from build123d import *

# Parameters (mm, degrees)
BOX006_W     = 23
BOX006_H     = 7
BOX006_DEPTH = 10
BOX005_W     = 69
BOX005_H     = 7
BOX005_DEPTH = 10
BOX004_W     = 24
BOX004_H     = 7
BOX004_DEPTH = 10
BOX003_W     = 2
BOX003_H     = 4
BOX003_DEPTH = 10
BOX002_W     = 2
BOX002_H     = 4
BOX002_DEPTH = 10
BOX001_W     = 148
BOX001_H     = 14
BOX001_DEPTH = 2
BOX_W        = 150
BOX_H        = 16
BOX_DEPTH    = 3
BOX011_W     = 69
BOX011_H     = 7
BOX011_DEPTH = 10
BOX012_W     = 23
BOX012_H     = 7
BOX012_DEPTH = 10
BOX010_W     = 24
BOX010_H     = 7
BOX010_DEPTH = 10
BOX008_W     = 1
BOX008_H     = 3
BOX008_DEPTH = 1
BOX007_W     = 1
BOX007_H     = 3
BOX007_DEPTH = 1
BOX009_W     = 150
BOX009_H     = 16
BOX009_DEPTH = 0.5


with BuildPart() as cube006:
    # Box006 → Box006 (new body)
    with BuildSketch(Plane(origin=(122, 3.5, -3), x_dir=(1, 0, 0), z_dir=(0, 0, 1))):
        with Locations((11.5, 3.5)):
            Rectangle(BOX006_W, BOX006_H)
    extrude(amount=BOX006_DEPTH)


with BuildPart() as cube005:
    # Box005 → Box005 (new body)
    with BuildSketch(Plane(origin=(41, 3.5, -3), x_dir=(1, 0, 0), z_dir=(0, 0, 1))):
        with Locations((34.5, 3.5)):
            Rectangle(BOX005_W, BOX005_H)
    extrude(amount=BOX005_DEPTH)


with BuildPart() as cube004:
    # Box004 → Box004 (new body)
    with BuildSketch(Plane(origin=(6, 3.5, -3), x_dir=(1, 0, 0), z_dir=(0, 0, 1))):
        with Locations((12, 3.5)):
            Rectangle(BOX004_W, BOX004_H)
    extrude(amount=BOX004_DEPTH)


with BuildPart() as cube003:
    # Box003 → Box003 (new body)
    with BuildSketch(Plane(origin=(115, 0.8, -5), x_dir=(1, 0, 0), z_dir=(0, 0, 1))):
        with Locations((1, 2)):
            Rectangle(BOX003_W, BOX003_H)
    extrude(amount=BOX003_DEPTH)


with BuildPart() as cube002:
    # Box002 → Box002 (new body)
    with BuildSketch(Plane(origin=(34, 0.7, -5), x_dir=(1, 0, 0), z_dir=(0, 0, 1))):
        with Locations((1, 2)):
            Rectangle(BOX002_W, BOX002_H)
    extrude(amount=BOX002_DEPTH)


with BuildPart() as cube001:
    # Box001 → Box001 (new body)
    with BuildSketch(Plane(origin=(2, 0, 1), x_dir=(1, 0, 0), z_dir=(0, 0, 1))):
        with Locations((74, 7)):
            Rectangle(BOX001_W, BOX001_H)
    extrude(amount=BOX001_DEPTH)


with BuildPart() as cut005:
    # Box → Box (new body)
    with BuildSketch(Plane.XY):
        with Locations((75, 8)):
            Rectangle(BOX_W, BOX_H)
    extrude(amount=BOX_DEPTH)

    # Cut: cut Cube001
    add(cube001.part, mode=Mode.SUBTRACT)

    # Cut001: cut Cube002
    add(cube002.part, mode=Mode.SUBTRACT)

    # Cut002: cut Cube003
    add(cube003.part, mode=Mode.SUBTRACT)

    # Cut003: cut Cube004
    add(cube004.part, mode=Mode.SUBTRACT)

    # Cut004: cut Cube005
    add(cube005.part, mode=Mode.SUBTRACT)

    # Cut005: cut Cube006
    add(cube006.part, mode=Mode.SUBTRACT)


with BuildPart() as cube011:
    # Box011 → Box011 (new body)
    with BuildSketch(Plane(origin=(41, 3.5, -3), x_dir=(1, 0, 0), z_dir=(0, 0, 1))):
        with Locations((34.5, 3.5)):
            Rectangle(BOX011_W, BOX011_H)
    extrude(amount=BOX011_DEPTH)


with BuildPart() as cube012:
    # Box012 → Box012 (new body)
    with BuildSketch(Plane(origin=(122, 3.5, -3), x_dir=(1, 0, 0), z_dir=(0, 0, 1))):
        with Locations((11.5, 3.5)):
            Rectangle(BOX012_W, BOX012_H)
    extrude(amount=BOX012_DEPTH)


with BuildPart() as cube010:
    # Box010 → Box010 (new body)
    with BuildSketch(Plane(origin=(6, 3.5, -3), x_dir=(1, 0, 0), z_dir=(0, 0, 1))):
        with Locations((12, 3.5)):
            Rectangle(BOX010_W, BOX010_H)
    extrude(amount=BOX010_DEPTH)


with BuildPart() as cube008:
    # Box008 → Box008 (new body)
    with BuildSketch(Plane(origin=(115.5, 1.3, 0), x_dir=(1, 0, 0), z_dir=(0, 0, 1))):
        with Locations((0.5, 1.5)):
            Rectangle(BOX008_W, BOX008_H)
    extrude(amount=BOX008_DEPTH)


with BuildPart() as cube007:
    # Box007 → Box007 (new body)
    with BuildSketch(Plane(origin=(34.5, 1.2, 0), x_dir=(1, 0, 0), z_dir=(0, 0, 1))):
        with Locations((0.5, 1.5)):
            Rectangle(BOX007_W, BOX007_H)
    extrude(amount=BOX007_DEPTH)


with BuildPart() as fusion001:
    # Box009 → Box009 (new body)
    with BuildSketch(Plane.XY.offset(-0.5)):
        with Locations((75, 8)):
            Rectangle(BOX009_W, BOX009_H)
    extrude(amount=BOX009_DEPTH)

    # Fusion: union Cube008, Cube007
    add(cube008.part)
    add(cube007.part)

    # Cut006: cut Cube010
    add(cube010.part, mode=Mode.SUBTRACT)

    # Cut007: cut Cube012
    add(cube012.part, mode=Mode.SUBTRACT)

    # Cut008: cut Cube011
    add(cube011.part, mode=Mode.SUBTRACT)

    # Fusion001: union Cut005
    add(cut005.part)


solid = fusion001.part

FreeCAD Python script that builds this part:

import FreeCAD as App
import Part
import Sketcher


def add_polygon(sketch, points):
    """Adds a closed chain of lines whose ends are joined by coincident constraints."""
    first, n = sketch.GeometryCount, len(points)
    for a, b in zip(points, points[1:] + points[:1]):
        sketch.addGeometry(Part.LineSegment(App.Vector(*a, 0), App.Vector(*b, 0)), False)
    for i in range(n):
        sketch.addConstraint(Sketcher.Constraint("Coincident", first + i, 2, first + (i + 1) % n, 1))

doc = App.newDocument("Part")
body = doc.addObject("PartDesign::Body", "Body")

# Sketch on XY plane
sketch1 = body.newObject("Sketcher::SketchObject", "Sketch")
sketch1.AttachmentSupport = (doc.getObject("XY_Plane"), [""])
sketch1.MapMode = "FlatFace"
sketch1.AttachmentOffset = App.Placement(App.Vector(0, 0, -3), App.Rotation())
add_polygon(sketch1, [(122, 10), (122, 4), (145, 4), (145, 10)])  # lines 0-3
sketch1.addConstraint([
    Sketcher.Constraint("Vertical", 0),
    Sketcher.Constraint("Horizontal", 1),
    Sketcher.Constraint("Vertical", 2),
    Sketcher.Constraint("Horizontal", 3),
    Sketcher.Constraint("DistanceX", 1, 1, 1, 2, 23.0),
    Sketcher.Constraint("DistanceY", 0, 2, 0, 1, 7.0),
    Sketcher.Constraint("DistanceX", -1, 1, 0, 2, 122.0),
    Sketcher.Constraint("DistanceY", -1, 1, 0, 2, 3.5),
])
pad1 = body.newObject("PartDesign::Pad", "Pad")
pad1.Profile = sketch1
pad1.Length = 10
body2 = doc.addObject("PartDesign::Body", "Body001")

# Sketch on XY plane
sketch2 = body2.newObject("Sketcher::SketchObject", "Sketch001")
sketch2.AttachmentSupport = (doc.getObject("XY_Plane001"), [""])
sketch2.MapMode = "FlatFace"
sketch2.AttachmentOffset = App.Placement(App.Vector(0, 0, -3), App.Rotation())
add_polygon(sketch2, [(41, 10), (41, 4), (110, 4), (110, 10)])  # lines 0-3
sketch2.addConstraint([
    Sketcher.Constraint("Vertical", 0),
    Sketcher.Constraint("Horizontal", 1),
    Sketcher.Constraint("Vertical", 2),
    Sketcher.Constraint("Horizontal", 3),
    Sketcher.Constraint("DistanceX", 1, 1, 1, 2, 69.0),
    Sketcher.Constraint("DistanceY", 0, 2, 0, 1, 7.0),
    Sketcher.Constraint("DistanceX", -1, 1, 0, 2, 41.0),
    Sketcher.Constraint("DistanceY", -1, 1, 0, 2, 3.5),
])
pad2 = body2.newObject("PartDesign::Pad", "Pad001")
pad2.Profile = sketch2
pad2.Length = 10
body3 = doc.addObject("PartDesign::Body", "Body002")

# Sketch on XY plane
sketch3 = body3.newObject("Sketcher::SketchObject", "Sketch002")
sketch3.AttachmentSupport = (doc.getObject("XY_Plane002"), [""])
sketch3.MapMode = "FlatFace"
sketch3.AttachmentOffset = App.Placement(App.Vector(0, 0, -3), App.Rotation())
add_polygon(sketch3, [(6, 10), (6, 4), (30, 4), (30, 10)])  # lines 0-3
sketch3.addConstraint([
    Sketcher.Constraint("Vertical", 0),
    Sketcher.Constraint("Horizontal", 1),
    Sketcher.Constraint("Vertical", 2),
    Sketcher.Constraint("Horizontal", 3),
    Sketcher.Constraint("DistanceX", 1, 1, 1, 2, 24.0),
    Sketcher.Constraint("DistanceY", 0, 2, 0, 1, 7.0),
    Sketcher.Constraint("DistanceX", -1, 1, 0, 2, 6.0),
    Sketcher.Constraint("DistanceY", -1, 1, 0, 2, 3.5),
])
pad3 = body3.newObject("PartDesign::Pad", "Pad002")
pad3.Profile = sketch3
pad3.Length = 10
body4 = doc.addObject("PartDesign::Body", "Body003")

# Sketch on XY plane
sketch4 = body4.newObject("Sketcher::SketchObject", "Sketch003")
sketch4.AttachmentSupport = (doc.getObject("XY_Plane003"), [""])
sketch4.MapMode = "FlatFace"
sketch4.AttachmentOffset = App.Placement(App.Vector(0, 0, -5), App.Rotation())
add_polygon(sketch4, [(115, 4.8), (115, 0.8), (117, 0.8), (117, 4.8)])  # lines 0-3
sketch4.addConstraint([
    Sketcher.Constraint("Vertical", 0),
    Sketcher.Constraint("Horizontal", 1),
    Sketcher.Constraint("Vertical", 2),
    Sketcher.Constraint("Horizontal", 3),
    Sketcher.Constraint("DistanceX", 1, 1, 1, 2, 2.0),
    Sketcher.Constraint("DistanceY", 0, 2, 0, 1, 4.0),
    Sketcher.Constraint("DistanceX", -1, 1, 0, 2, 115.0),
    Sketcher.Constraint("DistanceY", -1, 1, 0, 2, 0.8),
])
pad4 = body4.newObject("PartDesign::Pad", "Pad003")
pad4.Profile = sketch4
pad4.Length = 10
body5 = doc.addObject("PartDesign::Body", "Body004")

# Sketch on XY plane
sketch5 = body5.newObject("Sketcher::SketchObject", "Sketch004")
sketch5.AttachmentSupport = (doc.getObject("XY_Plane004"), [""])
sketch5.MapMode = "FlatFace"
sketch5.AttachmentOffset = App.Placement(App.Vector(0, 0, -5), App.Rotation())
add_polygon(sketch5, [(34, 4.7), (34, 0.7), (36, 0.7), (36, 4.7)])  # lines 0-3
sketch5.addConstraint([
    Sketcher.Constraint("Vertical", 0),
    Sketcher.Constraint("Horizontal", 1),
    Sketcher.Constraint("Vertical", 2),
    Sketcher.Constraint("Horizontal", 3),
    Sketcher.Constraint("DistanceX", 1, 1, 1, 2, 2.0),
    Sketcher.Constraint("DistanceY", 0, 2, 0, 1, 4.0),
    Sketcher.Constraint("DistanceX", -1, 1, 0, 2, 34.0),
    Sketcher.Constraint("DistanceY", -1, 1, 0, 2, 0.7),
])
pad5 = body5.newObject("PartDesign::Pad", "Pad004")
pad5.Profile = sketch5
pad5.Length = 10
body6 = doc.addObject("PartDesign::Body", "Body005")

# Sketch on XY plane
sketch6 = body6.newObject("Sketcher::SketchObject", "Sketch005")
sketch6.AttachmentSupport = (doc.getObject("XY_Plane005"), [""])
sketch6.MapMode = "FlatFace"
sketch6.AttachmentOffset = App.Placement(App.Vector(0, 0, 1), App.Rotation())
add_polygon(sketch6, [(2, 14), (2, 0), (150, 0), (150, 14)])  # lines 0-3
sketch6.addConstraint([
    Sketcher.Constraint("Vertical", 0),
    Sketcher.Constraint("Horizontal", 1),
    Sketcher.Constraint("Vertical", 2),
    Sketcher.Constraint("Horizontal", 3),
    Sketcher.Constraint("PointOnObject", 0, 2, -1),
    Sketcher.Constraint("DistanceX", 1, 1, 1, 2, 148.0),
    Sketcher.Constraint("DistanceY", 0, 2, 0, 1, 14.0),
    Sketcher.Constraint("DistanceX", -1, 1, 0, 2, 2.0),
])
pad6 = body6.newObject("PartDesign::Pad", "Pad005")
pad6.Profile = sketch6
pad6.Length = 2
body7 = doc.addObject("PartDesign::Body", "Body006")

# Sketch on XY plane
sketch7 = body7.newObject("Sketcher::SketchObject", "Sketch006")
sketch7.AttachmentSupport = (doc.getObject("XY_Plane006"), [""])
sketch7.MapMode = "FlatFace"
add_polygon(sketch7, [(0, 16), (0, 0), (150, 0), (150, 16)])  # lines 0-3
sketch7.addConstraint([
    Sketcher.Constraint("Vertical", 0),
    Sketcher.Constraint("Horizontal", 1),
    Sketcher.Constraint("Vertical", 2),
    Sketcher.Constraint("Horizontal", 3),
    Sketcher.Constraint("Coincident", 0, 2, -1, 1),
    Sketcher.Constraint("DistanceX", 1, 1, 1, 2, 150.0),
    Sketcher.Constraint("DistanceY", 0, 2, 0, 1, 16.0),
])
pad7 = body7.newObject("PartDesign::Pad", "Pad006")
pad7.Profile = sketch7
pad7.Length = 3
doc.recompute()

boolean = body7.newObject("PartDesign::Boolean", "Boolean")
boolean.Type = "Cut"
boolean.addObjects([body6])
doc.recompute()

boolean2 = body7.newObject("PartDesign::Boolean", "Boolean001")
boolean2.Type = "Cut"
boolean2.addObjects([body5])
doc.recompute()

boolean3 = body7.newObject("PartDesign::Boolean", "Boolean002")
boolean3.Type = "Cut"
boolean3.addObjects([body4])
doc.recompute()

boolean4 = body7.newObject("PartDesign::Boolean", "Boolean003")
boolean4.Type = "Cut"
boolean4.addObjects([body3])
doc.recompute()

boolean5 = body7.newObject("PartDesign::Boolean", "Boolean004")
boolean5.Type = "Cut"
boolean5.addObjects([body2])
doc.recompute()

boolean6 = body7.newObject("PartDesign::Boolean", "Boolean005")
boolean6.Type = "Cut"
boolean6.addObjects([body])
body8 = doc.addObject("PartDesign::Body", "Body007")

# Sketch on XY plane
sketch8 = body8.newObject("Sketcher::SketchObject", "Sketch007")
sketch8.AttachmentSupport = (doc.getObject("XY_Plane007"), [""])
sketch8.MapMode = "FlatFace"
sketch8.AttachmentOffset = App.Placement(App.Vector(0, 0, -3), App.Rotation())
add_polygon(sketch8, [(41, 10), (41, 4), (110, 4), (110, 10)])  # lines 0-3
sketch8.addConstraint([
    Sketcher.Constraint("Vertical", 0),
    Sketcher.Constraint("Horizontal", 1),
    Sketcher.Constraint("Vertical", 2),
    Sketcher.Constraint("Horizontal", 3),
    Sketcher.Constraint("DistanceX", 1, 1, 1, 2, 69.0),
    Sketcher.Constraint("DistanceY", 0, 2, 0, 1, 7.0),
    Sketcher.Constraint("DistanceX", -1, 1, 0, 2, 41.0),
    Sketcher.Constraint("DistanceY", -1, 1, 0, 2, 3.5),
])
pad8 = body8.newObject("PartDesign::Pad", "Pad007")
pad8.Profile = sketch8
pad8.Length = 10
body9 = doc.addObject("PartDesign::Body", "Body008")

# Sketch on XY plane
sketch9 = body9.newObject("Sketcher::SketchObject", "Sketch008")
sketch9.AttachmentSupport = (doc.getObject("XY_Plane008"), [""])
sketch9.MapMode = "FlatFace"
sketch9.AttachmentOffset = App.Placement(App.Vector(0, 0, -3), App.Rotation())
add_polygon(sketch9, [(122, 10), (122, 4), (145, 4), (145, 10)])  # lines 0-3
sketch9.addConstraint([
    Sketcher.Constraint("Vertical", 0),
    Sketcher.Constraint("Horizontal", 1),
    Sketcher.Constraint("Vertical", 2),
    Sketcher.Constraint("Horizontal", 3),
    Sketcher.Constraint("DistanceX", 1, 1, 1, 2, 23.0),
    Sketcher.Constraint("DistanceY", 0, 2, 0, 1, 7.0),
    Sketcher.Constraint("DistanceX", -1, 1, 0, 2, 122.0),
    Sketcher.Constraint("DistanceY", -1, 1, 0, 2, 3.5),
])
pad9 = body9.newObject("PartDesign::Pad", "Pad008")
pad9.Profile = sketch9
pad9.Length = 10
body10 = doc.addObject("PartDesign::Body", "Body009")

# Sketch on XY plane
sketch10 = body10.newObject("Sketcher::SketchObject", "Sketch009")
sketch10.AttachmentSupport = (doc.getObject("XY_Plane009"), [""])
sketch10.MapMode = "FlatFace"
sketch10.AttachmentOffset = App.Placement(App.Vector(0, 0, -3), App.Rotation())
add_polygon(sketch10, [(6, 10), (6, 4), (30, 4), (30, 10)])  # lines 0-3
sketch10.addConstraint([
    Sketcher.Constraint("Vertical", 0),
    Sketcher.Constraint("Horizontal", 1),
    Sketcher.Constraint("Vertical", 2),
    Sketcher.Constraint("Horizontal", 3),
    Sketcher.Constraint("DistanceX", 1, 1, 1, 2, 24.0),
    Sketcher.Constraint("DistanceY", 0, 2, 0, 1, 7.0),
    Sketcher.Constraint("DistanceX", -1, 1, 0, 2, 6.0),
    Sketcher.Constraint("DistanceY", -1, 1, 0, 2, 3.5),
])
pad10 = body10.newObject("PartDesign::Pad", "Pad009")
pad10.Profile = sketch10
pad10.Length = 10
body11 = doc.addObject("PartDesign::Body", "Body010")

# Sketch on XY plane
sketch11 = body11.newObject("Sketcher::SketchObject", "Sketch010")
sketch11.AttachmentSupport = (doc.getObject("XY_Plane010"), [""])
sketch11.MapMode = "FlatFace"
add_polygon(sketch11, [(115.5, 4.3), (115.5, 1.3), (116.5, 1.3), (116.5, 4.3)])  # lines 0-3
sketch11.addConstraint([
    Sketcher.Constraint("Vertical", 0),
    Sketcher.Constraint("Horizontal", 1),
    Sketcher.Constraint("Vertical", 2),
    Sketcher.Constraint("Horizontal", 3),
    Sketcher.Constraint("DistanceX", 1, 1, 1, 2, 1.0),
    Sketcher.Constraint("DistanceY", 0, 2, 0, 1, 3.0),
    Sketcher.Constraint("DistanceX", -1, 1, 0, 2, 115.5),
    Sketcher.Constraint("DistanceY", -1, 1, 0, 2, 1.3),
])
pad11 = body11.newObject("PartDesign::Pad", "Pad010")
pad11.Profile = sketch11
pad11.Length = 1
body12 = doc.addObject("PartDesign::Body", "Body011")

# Sketch on XY plane
sketch12 = body12.newObject("Sketcher::SketchObject", "Sketch011")
sketch12.AttachmentSupport = (doc.getObject("XY_Plane011"), [""])
sketch12.MapMode = "FlatFace"
add_polygon(sketch12, [(34.5, 4.2), (34.5, 1.2), (35.5, 1.2), (35.5, 4.2)])  # lines 0-3
sketch12.addConstraint([
    Sketcher.Constraint("Vertical", 0),
    Sketcher.Constraint("Horizontal", 1),
    Sketcher.Constraint("Vertical", 2),
    Sketcher.Constraint("Horizontal", 3),
    Sketcher.Constraint("DistanceX", 1, 1, 1, 2, 1.0),
    Sketcher.Constraint("DistanceY", 0, 2, 0, 1, 3.0),
    Sketcher.Constraint("DistanceX", -1, 1, 0, 2, 34.5),
    Sketcher.Constraint("DistanceY", -1, 1, 0, 2, 1.2),
])
pad12 = body12.newObject("PartDesign::Pad", "Pad011")
pad12.Profile = sketch12
pad12.Length = 1
body13 = doc.addObject("PartDesign::Body", "Body012")

# Sketch on XY plane
sketch13 = body13.newObject("Sketcher::SketchObject", "Sketch012")
sketch13.AttachmentSupport = (doc.getObject("XY_Plane012"), [""])
sketch13.MapMode = "FlatFace"
sketch13.AttachmentOffset = App.Placement(App.Vector(0, 0, -0.5), App.Rotation())
add_polygon(sketch13, [(0, 16), (0, 0), (150, 0), (150, 16)])  # lines 0-3
sketch13.addConstraint([
    Sketcher.Constraint("Vertical", 0),
    Sketcher.Constraint("Horizontal", 1),
    Sketcher.Constraint("Vertical", 2),
    Sketcher.Constraint("Horizontal", 3),
    Sketcher.Constraint("Coincident", 0, 2, -1, 1),
    Sketcher.Constraint("DistanceX", 1, 1, 1, 2, 150.0),
    Sketcher.Constraint("DistanceY", 0, 2, 0, 1, 16.0),
])
pad13 = body13.newObject("PartDesign::Pad", "Pad012")
pad13.Profile = sketch13
pad13.Length = 0.5
doc.recompute()

boolean7 = body13.newObject("PartDesign::Boolean", "Boolean006")
boolean7.Type = "Fuse"
boolean7.addObjects([body11])
doc.recompute()

boolean8 = body13.newObject("PartDesign::Boolean", "Boolean007")
boolean8.Type = "Fuse"
boolean8.addObjects([body12])
doc.recompute()

boolean9 = body13.newObject("PartDesign::Boolean", "Boolean008")
boolean9.Type = "Cut"
boolean9.addObjects([body10])
doc.recompute()

boolean10 = body13.newObject("PartDesign::Boolean", "Boolean009")
boolean10.Type = "Cut"
boolean10.addObjects([body9])
doc.recompute()

boolean11 = body13.newObject("PartDesign::Boolean", "Boolean010")
boolean11.Type = "Cut"
boolean11.addObjects([body8])
doc.recompute()

boolean12 = body13.newObject("PartDesign::Boolean", "Boolean011")
boolean12.Type = "Fuse"
boolean12.addObjects([body7])

doc.recompute()
